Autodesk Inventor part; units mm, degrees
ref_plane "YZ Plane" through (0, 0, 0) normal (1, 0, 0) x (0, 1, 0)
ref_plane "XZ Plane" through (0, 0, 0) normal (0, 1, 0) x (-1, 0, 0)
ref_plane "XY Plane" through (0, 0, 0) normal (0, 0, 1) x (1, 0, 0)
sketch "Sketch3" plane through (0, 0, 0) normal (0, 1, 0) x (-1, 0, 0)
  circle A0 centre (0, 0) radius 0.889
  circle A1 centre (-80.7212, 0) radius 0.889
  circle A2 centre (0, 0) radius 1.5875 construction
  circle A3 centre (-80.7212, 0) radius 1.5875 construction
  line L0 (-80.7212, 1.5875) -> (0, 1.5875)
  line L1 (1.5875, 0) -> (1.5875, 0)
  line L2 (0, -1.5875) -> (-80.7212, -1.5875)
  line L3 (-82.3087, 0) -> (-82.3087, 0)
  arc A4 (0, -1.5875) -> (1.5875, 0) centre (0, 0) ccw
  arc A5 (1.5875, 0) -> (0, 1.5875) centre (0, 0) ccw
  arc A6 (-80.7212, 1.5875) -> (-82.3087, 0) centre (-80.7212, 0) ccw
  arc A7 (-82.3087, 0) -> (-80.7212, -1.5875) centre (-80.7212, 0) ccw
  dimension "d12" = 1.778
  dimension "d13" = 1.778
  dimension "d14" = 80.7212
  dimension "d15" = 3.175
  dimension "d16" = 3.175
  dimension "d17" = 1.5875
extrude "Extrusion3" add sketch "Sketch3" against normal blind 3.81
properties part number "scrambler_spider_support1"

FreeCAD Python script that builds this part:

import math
import FreeCAD as App
import Part
import Sketcher

V = App.Vector
Q = App.Units.Quantity

doc = App.newDocument("Part")
body = doc.addObject("PartDesign::Body", "Body")

sketch1 = doc.addObject("Sketcher::SketchObject", "Sketch")
body.addObject(sketch1)
sketch1.AttachmentSupport = (doc.XZ_Plane, [""])
sketch1.MapMode = "FlatFace"
sketch1.addGeometry(Part.LineSegment(V(0, 1.6, 0), V(80.7, 1.6, 0)), False)
sketch1.addGeometry(Part.ArcOfCircle(Part.Circle(V(80.7, 0, 0), V(0, 0, 1), 1.6), math.radians(-90), math.radians(90)), False)
sketch1.addGeometry(Part.LineSegment(V(80.7, -1.6, 0), V(0, -1.6, 0)), False)
sketch1.addGeometry(Part.ArcOfCircle(Part.Circle(V(0, 0, 0), V(0, 0, 1), 1.6), math.radians(90), math.radians(270)), False)
sketch1.addGeometry(Part.Circle(V(80.7, 0, 0), V(0, 0, 1), 0.9), False)
sketch1.addGeometry(Part.Circle(V(0, 0, 0), V(0, 0, 1), 0.9), False)
sketch1.addConstraint(Sketcher.Constraint("Tangent", 0, 2, 1, 2))
sketch1.addConstraint(Sketcher.Constraint("Tangent", 1, 1, 2, 1))
sketch1.addConstraint(Sketcher.Constraint("Tangent", 2, 2, 3, 2))
sketch1.addConstraint(Sketcher.Constraint("Tangent", 3, 1, 0, 1))
sketch1.addConstraint(Sketcher.Constraint("Horizontal", 0))
sketch1.addConstraint(Sketcher.Constraint("Horizontal", 2))
sketch1.addConstraint(Sketcher.Constraint("Coincident", 3, 3, -1, 1))
sketch1.addConstraint(Sketcher.Constraint("Coincident", 5, 3, -1, 1))
sketch1.addConstraint(Sketcher.Constraint("Coincident", 4, 3, 1, 3))
sketch1.addConstraint(Sketcher.Constraint("Equal", 4, 5))
sketch1.addConstraint(Sketcher.Constraint("Diameter", 4, Q("0.07 in")))
sketch1.addConstraint(Sketcher.Constraint("Radius", 1, Q("0.0625 in")))
sketch1.addConstraint(Sketcher.Constraint("DistanceX", 0, 1, 0, 2, Q("3.178 in")))
pad1 = doc.addObject("PartDesign::Pad", "Pad")
body.addObject(pad1)
pad1.Profile = sketch1
pad1.Length = Q("0.15 in")

doc.recompute()
